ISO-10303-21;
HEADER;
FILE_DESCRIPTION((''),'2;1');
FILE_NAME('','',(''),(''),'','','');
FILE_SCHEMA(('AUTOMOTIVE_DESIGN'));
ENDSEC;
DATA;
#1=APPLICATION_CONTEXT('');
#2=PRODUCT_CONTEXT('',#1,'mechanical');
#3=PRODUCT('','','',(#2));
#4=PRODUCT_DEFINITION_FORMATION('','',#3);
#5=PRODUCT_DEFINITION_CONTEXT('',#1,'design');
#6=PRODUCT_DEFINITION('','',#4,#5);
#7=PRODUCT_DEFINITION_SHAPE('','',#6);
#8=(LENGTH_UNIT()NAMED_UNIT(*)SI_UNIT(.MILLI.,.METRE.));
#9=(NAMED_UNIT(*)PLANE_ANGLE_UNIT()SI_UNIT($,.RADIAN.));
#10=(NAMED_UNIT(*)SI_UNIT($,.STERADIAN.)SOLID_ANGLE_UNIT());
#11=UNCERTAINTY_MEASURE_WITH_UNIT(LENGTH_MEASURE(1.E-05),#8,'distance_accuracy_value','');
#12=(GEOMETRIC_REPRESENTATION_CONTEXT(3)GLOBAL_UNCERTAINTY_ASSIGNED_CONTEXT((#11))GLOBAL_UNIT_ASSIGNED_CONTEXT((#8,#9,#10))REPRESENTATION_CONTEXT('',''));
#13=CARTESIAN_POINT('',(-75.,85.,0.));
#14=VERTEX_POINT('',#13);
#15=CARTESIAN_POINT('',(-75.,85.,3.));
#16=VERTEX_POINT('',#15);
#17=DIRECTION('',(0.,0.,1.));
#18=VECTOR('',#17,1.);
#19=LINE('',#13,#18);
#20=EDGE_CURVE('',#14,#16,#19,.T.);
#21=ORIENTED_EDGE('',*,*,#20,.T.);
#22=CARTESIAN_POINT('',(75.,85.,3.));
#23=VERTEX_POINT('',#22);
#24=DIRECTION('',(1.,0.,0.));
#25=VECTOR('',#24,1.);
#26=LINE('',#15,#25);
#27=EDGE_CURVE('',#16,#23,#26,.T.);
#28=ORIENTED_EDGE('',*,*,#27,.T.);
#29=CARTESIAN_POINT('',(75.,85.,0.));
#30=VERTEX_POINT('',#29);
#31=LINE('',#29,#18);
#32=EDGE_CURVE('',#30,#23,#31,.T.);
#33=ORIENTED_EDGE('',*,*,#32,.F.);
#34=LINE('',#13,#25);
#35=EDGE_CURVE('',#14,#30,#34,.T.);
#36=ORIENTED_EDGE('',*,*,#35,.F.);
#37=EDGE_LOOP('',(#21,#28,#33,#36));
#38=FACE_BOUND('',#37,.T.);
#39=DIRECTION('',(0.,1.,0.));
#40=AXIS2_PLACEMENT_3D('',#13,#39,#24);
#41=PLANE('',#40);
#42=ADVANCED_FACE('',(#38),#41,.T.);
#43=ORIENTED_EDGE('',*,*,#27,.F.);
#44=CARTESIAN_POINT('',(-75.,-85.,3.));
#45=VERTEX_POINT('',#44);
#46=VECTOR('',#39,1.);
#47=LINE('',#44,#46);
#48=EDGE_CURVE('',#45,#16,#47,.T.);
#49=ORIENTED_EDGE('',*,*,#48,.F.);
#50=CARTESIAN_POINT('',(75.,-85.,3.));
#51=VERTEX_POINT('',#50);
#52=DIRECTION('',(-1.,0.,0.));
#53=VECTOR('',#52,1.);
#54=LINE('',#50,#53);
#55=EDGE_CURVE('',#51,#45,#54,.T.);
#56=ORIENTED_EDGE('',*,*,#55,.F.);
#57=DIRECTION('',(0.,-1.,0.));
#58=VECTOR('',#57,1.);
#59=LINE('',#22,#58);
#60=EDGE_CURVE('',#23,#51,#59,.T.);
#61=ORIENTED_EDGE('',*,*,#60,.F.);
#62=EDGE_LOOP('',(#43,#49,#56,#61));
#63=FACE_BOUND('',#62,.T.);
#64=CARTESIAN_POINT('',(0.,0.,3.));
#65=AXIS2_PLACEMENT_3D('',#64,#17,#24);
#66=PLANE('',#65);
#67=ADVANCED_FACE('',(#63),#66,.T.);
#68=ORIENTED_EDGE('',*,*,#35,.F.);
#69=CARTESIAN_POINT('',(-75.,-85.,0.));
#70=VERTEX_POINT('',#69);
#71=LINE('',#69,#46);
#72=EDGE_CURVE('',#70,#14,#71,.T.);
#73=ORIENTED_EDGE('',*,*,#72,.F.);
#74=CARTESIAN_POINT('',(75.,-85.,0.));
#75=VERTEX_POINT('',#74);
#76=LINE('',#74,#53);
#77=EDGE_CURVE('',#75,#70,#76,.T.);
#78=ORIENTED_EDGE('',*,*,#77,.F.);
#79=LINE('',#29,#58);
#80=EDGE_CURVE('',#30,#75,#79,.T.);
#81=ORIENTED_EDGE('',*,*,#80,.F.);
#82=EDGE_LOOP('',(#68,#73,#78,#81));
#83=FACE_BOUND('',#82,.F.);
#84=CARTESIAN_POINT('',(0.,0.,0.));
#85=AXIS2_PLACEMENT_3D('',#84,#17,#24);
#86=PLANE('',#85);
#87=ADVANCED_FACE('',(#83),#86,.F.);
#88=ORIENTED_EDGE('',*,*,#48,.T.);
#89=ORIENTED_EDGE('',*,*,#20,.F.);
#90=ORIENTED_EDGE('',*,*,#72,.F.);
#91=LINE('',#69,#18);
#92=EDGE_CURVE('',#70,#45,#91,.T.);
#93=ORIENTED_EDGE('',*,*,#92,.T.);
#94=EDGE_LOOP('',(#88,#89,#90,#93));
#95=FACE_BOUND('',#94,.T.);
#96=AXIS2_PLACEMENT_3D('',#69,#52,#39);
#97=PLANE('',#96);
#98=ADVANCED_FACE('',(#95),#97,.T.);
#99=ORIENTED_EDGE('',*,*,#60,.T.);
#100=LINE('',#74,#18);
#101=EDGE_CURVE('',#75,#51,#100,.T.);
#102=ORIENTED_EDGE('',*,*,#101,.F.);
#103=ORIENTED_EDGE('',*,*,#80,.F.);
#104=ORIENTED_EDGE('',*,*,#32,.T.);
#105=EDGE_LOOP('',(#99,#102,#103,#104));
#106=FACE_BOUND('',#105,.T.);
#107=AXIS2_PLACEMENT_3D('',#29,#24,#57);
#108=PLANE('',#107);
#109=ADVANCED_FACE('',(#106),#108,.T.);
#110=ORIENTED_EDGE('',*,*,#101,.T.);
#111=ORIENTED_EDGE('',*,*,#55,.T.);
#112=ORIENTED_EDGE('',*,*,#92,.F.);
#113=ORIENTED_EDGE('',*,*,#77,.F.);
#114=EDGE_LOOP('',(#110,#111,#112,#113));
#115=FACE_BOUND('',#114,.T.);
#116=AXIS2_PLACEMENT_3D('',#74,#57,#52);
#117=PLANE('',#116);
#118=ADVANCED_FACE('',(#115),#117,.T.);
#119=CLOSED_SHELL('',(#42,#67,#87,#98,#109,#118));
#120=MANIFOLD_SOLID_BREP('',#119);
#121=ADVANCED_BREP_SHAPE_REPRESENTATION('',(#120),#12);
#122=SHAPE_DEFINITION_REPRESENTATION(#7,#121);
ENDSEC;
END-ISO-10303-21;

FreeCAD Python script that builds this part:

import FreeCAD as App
import Part
import Sketcher
from FreeCAD import Vector

doc = App.newDocument("Part")
body = doc.addObject("PartDesign::Body", "Body")

# Sketch on XY plane
sketch1 = doc.addObject("Sketcher::SketchObject", "Sketch")
body.addObject(sketch1)
sketch1.AttachmentSupport = (doc.XY_Plane, [""])
sketch1.MapMode = "FlatFace"
sketch1.addGeometry([
    Part.LineSegment(Vector(75, 85, 0), Vector(-75, 85, 0)),
    Part.LineSegment(Vector(-75, 85, 0), Vector(-75, -85, 0)),
    Part.LineSegment(Vector(-75, -85, 0), Vector(75, -85, 0)),
    Part.LineSegment(Vector(75, -85, 0), Vector(75, 85, 0)),
], False)
sketch1.addConstraint([
    Sketcher.Constraint("Coincident", 0, 2, 1, 1),
    Sketcher.Constraint("Coincident", 1, 2, 2, 1),
    Sketcher.Constraint("Coincident", 2, 2, 3, 1),
    Sketcher.Constraint("Coincident", 3, 2, 0, 1),
    Sketcher.Constraint("Horizontal", 0),
    Sketcher.Constraint("Vertical", 1),
    Sketcher.Constraint("Horizontal", 2),
    Sketcher.Constraint("Vertical", 3),
    Sketcher.Constraint("Symmetric", 0, 2, 2, 2, -1, 1),
    Sketcher.Constraint("DistanceX", 0, 2, 0, 1, 150.0),
    Sketcher.Constraint("DistanceY", 1, 2, 1, 1, 170.0),
])
pad1 = doc.addObject("PartDesign::Pad", "Pad")
body.addObject(pad1)
pad1.Profile = sketch1
pad1.Length = 3

doc.recompute()
